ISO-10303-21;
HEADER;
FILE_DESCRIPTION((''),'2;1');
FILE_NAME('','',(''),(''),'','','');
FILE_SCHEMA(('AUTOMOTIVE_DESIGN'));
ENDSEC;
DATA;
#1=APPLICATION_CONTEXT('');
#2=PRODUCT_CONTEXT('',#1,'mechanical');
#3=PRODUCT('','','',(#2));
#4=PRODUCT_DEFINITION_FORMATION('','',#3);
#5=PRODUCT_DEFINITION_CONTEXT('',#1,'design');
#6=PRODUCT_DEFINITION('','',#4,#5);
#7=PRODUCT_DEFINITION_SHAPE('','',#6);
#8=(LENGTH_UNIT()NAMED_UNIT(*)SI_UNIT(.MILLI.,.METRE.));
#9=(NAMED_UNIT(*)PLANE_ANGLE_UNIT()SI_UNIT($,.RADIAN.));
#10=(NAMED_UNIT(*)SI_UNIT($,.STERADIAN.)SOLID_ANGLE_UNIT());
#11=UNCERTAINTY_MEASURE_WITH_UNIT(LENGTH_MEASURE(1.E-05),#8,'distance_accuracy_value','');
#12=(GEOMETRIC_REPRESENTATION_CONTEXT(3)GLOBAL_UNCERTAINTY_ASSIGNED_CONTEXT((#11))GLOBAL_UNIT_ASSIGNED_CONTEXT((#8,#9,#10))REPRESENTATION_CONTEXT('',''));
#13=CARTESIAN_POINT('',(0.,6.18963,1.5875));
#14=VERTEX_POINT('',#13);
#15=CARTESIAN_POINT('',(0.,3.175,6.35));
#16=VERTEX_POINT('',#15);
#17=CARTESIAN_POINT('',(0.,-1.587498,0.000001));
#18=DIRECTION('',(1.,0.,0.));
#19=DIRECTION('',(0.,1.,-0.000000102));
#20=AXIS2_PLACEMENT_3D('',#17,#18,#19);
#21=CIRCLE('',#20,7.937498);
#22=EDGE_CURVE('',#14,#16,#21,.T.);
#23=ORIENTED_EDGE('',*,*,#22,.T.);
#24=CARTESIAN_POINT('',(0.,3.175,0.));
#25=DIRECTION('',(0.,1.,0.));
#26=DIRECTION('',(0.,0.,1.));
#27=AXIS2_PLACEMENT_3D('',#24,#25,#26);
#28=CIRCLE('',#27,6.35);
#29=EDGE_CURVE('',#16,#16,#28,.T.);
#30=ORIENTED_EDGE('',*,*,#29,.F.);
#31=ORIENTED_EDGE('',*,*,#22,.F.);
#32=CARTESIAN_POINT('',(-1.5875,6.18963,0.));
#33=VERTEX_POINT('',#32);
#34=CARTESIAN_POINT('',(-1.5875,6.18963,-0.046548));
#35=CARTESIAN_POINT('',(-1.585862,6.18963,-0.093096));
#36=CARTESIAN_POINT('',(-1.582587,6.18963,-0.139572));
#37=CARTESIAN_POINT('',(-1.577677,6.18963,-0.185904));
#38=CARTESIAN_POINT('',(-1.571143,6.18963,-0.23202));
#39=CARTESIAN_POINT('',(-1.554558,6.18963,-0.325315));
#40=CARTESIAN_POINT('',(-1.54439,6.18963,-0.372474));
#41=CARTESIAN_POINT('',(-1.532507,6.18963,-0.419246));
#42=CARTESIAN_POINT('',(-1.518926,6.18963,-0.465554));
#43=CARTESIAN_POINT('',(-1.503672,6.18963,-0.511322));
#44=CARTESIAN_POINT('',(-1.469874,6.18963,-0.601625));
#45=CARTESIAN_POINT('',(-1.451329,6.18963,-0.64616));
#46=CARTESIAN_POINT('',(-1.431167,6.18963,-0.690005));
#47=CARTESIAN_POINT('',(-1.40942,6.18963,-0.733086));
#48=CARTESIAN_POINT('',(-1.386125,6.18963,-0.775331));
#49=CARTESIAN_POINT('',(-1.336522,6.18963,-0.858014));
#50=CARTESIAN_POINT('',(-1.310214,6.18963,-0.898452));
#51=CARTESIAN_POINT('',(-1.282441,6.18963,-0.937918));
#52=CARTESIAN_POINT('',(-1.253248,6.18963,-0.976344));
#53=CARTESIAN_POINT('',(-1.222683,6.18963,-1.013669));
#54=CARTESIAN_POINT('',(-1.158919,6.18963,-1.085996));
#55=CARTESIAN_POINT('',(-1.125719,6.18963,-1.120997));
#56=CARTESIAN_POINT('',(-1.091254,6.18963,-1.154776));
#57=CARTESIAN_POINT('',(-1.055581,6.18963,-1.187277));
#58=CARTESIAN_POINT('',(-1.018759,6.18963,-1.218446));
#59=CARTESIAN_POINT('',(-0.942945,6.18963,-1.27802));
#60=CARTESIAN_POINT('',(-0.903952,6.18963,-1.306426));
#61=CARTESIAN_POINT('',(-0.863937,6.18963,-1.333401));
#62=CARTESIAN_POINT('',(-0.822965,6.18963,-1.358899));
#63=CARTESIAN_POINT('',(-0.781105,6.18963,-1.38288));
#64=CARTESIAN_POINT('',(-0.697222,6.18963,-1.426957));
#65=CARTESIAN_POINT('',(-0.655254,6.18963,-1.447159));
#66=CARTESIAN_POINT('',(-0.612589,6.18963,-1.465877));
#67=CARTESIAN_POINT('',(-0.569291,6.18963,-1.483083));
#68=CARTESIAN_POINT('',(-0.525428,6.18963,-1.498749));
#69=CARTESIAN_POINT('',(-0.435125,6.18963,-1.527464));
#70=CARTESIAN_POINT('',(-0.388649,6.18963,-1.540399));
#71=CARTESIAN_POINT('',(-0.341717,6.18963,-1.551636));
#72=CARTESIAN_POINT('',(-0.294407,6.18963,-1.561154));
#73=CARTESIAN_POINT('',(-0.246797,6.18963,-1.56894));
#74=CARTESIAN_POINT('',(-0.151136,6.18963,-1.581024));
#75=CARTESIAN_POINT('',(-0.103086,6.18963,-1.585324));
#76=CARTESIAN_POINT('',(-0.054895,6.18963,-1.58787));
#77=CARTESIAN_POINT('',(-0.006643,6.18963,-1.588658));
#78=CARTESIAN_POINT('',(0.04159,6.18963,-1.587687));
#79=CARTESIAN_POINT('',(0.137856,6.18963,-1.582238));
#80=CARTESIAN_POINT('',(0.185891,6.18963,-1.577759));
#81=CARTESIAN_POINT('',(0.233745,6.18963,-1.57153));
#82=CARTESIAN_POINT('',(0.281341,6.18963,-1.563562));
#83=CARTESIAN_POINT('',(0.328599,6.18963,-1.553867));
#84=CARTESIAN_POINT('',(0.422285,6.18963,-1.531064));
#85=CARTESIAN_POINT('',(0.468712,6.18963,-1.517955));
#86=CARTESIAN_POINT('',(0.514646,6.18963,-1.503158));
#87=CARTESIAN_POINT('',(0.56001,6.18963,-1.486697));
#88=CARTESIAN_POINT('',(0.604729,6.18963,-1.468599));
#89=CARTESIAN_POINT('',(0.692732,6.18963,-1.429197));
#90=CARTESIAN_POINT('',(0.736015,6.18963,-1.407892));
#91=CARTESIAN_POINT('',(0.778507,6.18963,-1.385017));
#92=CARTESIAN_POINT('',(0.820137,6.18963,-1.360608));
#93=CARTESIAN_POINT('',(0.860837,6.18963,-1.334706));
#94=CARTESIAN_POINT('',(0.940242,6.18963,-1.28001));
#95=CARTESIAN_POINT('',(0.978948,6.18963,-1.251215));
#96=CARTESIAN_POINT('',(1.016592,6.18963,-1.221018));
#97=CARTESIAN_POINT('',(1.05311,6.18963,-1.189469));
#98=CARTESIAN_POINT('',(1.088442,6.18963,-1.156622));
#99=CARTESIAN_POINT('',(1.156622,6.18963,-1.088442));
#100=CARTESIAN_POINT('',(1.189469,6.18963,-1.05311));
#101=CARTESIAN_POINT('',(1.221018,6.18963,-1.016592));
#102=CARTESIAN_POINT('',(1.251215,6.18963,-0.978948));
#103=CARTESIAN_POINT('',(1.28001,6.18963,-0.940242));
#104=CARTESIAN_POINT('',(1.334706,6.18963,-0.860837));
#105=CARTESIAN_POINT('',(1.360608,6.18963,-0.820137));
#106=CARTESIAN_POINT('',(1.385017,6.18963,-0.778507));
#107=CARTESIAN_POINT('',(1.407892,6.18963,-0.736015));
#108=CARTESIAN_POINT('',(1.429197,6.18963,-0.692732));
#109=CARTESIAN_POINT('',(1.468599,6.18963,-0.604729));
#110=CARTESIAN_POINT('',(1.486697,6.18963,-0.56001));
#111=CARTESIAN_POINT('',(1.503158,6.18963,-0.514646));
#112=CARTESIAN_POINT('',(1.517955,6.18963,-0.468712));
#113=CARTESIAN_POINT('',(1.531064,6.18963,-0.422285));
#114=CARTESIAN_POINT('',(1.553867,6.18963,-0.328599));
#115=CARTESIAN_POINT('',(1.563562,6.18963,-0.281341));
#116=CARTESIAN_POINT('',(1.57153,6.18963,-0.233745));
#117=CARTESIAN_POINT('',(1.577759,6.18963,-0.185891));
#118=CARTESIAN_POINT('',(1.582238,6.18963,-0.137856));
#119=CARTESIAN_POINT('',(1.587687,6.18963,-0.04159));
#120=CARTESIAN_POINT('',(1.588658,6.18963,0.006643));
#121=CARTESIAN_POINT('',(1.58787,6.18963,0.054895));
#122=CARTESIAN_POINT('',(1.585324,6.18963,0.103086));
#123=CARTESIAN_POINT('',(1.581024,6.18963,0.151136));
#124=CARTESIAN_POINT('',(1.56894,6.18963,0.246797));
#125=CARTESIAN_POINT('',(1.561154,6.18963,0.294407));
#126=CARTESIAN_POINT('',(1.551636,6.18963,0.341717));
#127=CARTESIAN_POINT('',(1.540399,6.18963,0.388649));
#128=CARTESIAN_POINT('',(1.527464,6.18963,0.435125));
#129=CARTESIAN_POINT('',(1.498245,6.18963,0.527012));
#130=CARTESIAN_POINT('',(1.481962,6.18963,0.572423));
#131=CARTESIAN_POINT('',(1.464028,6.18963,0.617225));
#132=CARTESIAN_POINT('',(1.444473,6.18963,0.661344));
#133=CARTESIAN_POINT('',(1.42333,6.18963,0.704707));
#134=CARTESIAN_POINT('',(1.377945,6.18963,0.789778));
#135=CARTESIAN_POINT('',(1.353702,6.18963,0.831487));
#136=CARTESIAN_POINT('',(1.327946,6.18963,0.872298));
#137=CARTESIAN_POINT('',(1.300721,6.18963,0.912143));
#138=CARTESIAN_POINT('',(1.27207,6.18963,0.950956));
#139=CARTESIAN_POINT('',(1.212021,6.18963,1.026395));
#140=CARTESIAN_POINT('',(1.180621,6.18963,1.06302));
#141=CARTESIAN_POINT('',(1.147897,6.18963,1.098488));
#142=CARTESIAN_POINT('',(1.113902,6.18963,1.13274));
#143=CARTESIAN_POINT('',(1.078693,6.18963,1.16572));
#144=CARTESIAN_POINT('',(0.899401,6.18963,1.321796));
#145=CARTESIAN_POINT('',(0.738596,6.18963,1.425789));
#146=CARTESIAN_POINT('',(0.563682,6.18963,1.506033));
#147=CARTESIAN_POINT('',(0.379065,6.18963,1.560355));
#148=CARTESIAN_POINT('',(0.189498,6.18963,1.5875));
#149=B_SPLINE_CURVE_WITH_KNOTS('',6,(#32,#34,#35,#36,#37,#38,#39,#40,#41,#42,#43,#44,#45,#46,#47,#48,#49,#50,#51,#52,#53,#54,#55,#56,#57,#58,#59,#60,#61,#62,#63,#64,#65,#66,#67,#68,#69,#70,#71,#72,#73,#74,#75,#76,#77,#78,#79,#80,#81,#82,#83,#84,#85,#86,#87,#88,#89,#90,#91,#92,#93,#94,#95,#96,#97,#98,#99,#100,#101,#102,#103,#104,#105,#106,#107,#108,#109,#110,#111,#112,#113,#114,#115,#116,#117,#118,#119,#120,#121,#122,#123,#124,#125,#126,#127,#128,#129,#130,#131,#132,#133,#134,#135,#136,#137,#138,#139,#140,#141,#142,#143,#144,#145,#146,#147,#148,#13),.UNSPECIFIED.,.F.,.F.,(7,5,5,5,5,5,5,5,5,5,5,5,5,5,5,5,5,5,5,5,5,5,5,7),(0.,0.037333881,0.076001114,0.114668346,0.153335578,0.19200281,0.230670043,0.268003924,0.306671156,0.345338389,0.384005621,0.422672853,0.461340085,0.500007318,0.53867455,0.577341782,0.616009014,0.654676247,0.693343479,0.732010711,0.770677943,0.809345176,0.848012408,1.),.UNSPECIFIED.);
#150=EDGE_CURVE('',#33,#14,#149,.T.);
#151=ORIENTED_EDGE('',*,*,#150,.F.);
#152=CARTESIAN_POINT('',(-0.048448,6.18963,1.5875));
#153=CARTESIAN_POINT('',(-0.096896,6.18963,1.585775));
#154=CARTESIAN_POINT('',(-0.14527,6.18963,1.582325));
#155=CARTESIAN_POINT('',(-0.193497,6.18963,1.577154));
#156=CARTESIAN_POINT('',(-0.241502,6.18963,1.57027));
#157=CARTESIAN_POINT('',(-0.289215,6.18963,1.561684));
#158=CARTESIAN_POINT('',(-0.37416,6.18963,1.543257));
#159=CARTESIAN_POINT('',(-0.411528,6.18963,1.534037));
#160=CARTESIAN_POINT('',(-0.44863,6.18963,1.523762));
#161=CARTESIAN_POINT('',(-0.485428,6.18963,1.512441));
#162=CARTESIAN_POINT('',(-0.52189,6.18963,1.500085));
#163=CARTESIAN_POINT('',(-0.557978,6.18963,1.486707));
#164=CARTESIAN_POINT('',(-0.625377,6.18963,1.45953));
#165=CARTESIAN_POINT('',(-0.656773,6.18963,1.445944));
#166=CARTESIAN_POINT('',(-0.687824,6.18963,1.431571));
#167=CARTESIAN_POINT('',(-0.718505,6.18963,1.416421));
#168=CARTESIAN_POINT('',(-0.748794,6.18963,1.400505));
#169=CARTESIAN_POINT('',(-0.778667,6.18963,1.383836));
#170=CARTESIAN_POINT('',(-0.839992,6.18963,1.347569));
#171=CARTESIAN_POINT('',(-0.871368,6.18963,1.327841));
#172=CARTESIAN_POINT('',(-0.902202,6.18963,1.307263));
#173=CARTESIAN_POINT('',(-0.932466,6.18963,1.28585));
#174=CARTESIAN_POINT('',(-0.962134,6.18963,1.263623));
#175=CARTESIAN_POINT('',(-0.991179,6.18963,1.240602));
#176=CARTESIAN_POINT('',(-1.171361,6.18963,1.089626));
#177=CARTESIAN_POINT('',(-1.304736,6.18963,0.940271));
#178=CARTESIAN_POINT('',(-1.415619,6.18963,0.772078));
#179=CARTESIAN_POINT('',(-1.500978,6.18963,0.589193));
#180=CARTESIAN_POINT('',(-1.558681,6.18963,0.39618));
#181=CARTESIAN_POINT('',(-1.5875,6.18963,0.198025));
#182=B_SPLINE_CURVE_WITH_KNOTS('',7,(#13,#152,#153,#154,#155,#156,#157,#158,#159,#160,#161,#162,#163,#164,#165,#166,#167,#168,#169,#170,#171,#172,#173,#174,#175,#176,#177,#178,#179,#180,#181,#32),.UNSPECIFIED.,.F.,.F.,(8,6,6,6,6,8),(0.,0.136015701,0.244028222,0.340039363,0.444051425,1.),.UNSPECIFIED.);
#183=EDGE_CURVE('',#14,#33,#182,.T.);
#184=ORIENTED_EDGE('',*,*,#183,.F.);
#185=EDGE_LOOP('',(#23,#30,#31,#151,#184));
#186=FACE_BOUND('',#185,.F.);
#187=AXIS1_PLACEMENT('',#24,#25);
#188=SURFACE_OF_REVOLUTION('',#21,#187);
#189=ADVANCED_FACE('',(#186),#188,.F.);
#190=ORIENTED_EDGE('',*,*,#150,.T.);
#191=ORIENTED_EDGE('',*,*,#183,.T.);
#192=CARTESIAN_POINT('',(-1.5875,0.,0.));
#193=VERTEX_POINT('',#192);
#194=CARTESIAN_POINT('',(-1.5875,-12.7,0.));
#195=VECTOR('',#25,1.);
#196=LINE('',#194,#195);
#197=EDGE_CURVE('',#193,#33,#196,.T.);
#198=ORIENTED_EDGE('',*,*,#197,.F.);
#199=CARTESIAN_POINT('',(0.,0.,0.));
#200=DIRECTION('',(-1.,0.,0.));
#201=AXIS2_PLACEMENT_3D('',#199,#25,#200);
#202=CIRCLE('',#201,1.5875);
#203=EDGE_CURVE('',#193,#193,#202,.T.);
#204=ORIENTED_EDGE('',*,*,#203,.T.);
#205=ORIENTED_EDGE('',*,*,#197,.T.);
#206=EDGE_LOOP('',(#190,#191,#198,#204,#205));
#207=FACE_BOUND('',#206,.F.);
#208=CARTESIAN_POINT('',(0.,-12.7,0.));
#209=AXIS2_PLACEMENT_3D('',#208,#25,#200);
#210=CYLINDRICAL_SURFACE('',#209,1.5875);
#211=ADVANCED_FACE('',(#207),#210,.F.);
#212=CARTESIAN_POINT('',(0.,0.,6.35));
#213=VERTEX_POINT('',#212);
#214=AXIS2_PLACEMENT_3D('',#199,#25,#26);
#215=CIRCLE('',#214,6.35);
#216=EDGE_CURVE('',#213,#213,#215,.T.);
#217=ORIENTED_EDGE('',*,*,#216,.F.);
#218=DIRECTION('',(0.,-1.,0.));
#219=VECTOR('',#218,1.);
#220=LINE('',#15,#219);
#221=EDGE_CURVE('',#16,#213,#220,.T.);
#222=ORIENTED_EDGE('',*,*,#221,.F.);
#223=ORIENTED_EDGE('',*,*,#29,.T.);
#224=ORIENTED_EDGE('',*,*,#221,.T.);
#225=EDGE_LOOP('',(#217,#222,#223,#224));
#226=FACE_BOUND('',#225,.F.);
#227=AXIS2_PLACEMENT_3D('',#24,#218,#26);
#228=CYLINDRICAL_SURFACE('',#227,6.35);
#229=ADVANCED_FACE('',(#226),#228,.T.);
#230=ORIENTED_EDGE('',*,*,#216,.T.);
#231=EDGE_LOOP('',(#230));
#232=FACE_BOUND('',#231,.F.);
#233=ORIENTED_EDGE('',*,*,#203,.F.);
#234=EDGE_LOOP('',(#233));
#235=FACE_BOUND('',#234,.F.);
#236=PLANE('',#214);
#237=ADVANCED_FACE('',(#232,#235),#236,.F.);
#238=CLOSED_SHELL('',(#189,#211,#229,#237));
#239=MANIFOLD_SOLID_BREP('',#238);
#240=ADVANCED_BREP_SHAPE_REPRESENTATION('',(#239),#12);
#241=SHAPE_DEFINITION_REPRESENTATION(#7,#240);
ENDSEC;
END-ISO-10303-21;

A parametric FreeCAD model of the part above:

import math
import FreeCAD as App
import Part
import Sketcher
from FreeCAD import Vector
Q = App.Units.Quantity

doc = App.newDocument("Part")
body = doc.addObject("PartDesign::Body", "Body")

# Sketch on YZ plane
sketch1 = doc.addObject("Sketcher::SketchObject", "Sketch")
body.addObject(sketch1)
sketch1.AttachmentSupport = (doc.YZ_Plane, [""])
sketch1.MapMode = "FlatFace"
sketch1.addGeometry([
    Part.LineSegment(Vector(0, 6.3, 0), Vector(0, 0, 0)),
    Part.LineSegment(Vector(0, 0, 0), Vector(6.3, 0, 0)),
    Part.ArcOfCircle(Part.Circle(Vector(-1.6, 0, 0), Vector(0, 0, 1), 7.9), math.radians(0), math.radians(53)),
    Part.LineSegment(Vector(3.2, 6.3, 0), Vector(0, 6.3, 0)),
], False)
sketch1.addConstraint([
    Sketcher.Constraint("Coincident", 0, 2, 1, 1),
    Sketcher.Constraint("Coincident", 1, 2, 2, 1),
    Sketcher.Constraint("Coincident", 2, 2, 3, 1),
    Sketcher.Constraint("Coincident", 3, 2, 0, 1),
    Sketcher.Constraint("Vertical", 0),
    Sketcher.Constraint("Horizontal", 1),
    Sketcher.Constraint("Horizontal", 3),
    Sketcher.Constraint("Coincident", 0, 2, -1, 1),
    Sketcher.Constraint("PointOnObject", 2, 3, -1),
    Sketcher.Constraint("Equal", 1, 0),
    Sketcher.Constraint("Radius", 2, Q("0.3124999 in")),
    Sketcher.Constraint("DistanceX", 1, 1, 1, 2, Q("0.25 in")),
])
revolution = doc.addObject("PartDesign::Revolution", "Revolution")
body.addObject(revolution)
revolution.Profile = sketch1
revolution.ReferenceAxis = (sketch1, ["H_Axis"])
revolution.Angle = 360

# Sketch on XZ plane
sketch2 = doc.addObject("Sketcher::SketchObject", "Sketch001")
body.addObject(sketch2)
sketch2.AttachmentSupport = (doc.XZ_Plane, [""])
sketch2.MapMode = "FlatFace"
sketch2.addGeometry(Part.Circle(Vector(0, 0, 0), Vector(0, 0, 1), 1.6), False)
sketch2.addConstraint([
    Sketcher.Constraint("Coincident", 0, 3, -1, 1),
    Sketcher.Constraint("Diameter", 0, Q("0.125 in")),
])
doc.recompute()
hole = doc.addObject("PartDesign::Hole", "Hole")
body.addObject(hole)
hole.Profile = sketch2
hole.ThreadType = "None"
hole.Diameter = Q("0.125 in")
hole.DepthType = "Dimension"
hole.Depth = Q("0.5 in")
hole.DrillPoint = "Flat"

doc.recompute()
